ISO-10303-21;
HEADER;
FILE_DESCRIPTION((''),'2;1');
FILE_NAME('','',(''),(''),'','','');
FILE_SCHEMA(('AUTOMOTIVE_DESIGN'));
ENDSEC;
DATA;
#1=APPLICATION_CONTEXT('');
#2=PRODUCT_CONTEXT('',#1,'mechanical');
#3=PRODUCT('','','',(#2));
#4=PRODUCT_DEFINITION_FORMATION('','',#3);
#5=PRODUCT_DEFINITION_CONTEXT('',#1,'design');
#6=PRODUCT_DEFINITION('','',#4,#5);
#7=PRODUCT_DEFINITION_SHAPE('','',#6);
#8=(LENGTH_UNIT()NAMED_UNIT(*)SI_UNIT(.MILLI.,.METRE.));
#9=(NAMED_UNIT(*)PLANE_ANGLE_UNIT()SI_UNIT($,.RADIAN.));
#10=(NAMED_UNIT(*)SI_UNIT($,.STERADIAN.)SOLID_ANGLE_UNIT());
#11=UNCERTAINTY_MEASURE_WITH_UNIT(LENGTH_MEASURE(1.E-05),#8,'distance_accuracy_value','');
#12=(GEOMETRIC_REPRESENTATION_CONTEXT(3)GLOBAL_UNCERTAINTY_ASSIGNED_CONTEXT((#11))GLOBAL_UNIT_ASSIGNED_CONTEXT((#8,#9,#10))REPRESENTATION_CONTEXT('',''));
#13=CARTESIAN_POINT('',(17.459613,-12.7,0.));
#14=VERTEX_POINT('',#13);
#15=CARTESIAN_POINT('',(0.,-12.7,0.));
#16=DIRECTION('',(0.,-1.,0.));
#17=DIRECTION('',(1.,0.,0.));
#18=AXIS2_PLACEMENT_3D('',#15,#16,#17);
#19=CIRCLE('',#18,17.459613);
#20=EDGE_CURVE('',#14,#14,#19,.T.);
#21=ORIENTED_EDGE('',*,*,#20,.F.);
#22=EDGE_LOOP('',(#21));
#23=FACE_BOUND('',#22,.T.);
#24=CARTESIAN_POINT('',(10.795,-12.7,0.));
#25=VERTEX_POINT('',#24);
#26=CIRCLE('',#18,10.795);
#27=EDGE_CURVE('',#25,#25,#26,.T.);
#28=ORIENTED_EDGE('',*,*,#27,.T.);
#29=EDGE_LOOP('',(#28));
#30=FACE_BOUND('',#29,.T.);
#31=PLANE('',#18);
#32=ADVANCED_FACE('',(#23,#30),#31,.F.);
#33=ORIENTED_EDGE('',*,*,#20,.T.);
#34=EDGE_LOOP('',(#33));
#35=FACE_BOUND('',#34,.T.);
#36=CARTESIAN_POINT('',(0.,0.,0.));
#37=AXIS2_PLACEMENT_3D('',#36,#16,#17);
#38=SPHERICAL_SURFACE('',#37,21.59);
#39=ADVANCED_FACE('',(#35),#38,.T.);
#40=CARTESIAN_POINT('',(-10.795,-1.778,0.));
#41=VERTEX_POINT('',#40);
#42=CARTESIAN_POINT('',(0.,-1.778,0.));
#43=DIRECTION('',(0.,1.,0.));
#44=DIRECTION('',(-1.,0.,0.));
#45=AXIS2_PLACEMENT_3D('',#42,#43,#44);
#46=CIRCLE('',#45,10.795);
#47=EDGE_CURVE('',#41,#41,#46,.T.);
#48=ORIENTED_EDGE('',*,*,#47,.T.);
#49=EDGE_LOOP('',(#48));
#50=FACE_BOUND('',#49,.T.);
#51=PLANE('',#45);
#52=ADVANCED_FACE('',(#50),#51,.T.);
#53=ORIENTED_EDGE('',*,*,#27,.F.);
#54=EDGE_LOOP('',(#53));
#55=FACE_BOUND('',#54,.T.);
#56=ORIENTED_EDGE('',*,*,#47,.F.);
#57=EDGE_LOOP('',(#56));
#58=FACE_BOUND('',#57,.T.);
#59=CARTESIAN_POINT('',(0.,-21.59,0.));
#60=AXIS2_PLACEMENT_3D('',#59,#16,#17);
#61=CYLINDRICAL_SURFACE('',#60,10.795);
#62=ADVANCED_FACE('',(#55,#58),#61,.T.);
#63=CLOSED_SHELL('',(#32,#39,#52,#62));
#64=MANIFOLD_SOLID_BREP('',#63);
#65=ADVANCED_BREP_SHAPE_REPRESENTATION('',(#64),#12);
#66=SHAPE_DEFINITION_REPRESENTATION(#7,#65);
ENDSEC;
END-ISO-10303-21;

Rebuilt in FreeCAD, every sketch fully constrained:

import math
import FreeCAD as App
import Part
import Sketcher
Q = App.Units.Quantity

doc = App.newDocument("Part")
body = doc.addObject("PartDesign::Body", "Body")

# Sketch on XY plane
sketch1 = body.newObject("Sketcher::SketchObject", "Sketch")
sketch1.AttachmentSupport = (doc.getObject("XY_Plane"), [""])
sketch1.MapMode = "FlatFace"
sketch1.addGeometry(Part.LineSegment(App.Vector(0, 0, 0), App.Vector(-11, 0, 0)), False)
sketch1.addGeometry(Part.LineSegment(App.Vector(-11, 0, 0), App.Vector(-11, -13, 0)), False)
sketch1.addGeometry(Part.LineSegment(App.Vector(-11, -13, 0), App.Vector(-17, -13, 0)), False)
sketch1.addGeometry(Part.ArcOfCircle(Part.Circle(App.Vector(0, 0, 0), App.Vector(0, 0, 1), 22), math.radians(-144), math.radians(-90)), False)
sketch1.addGeometry(Part.LineSegment(App.Vector(0, -22, 0), App.Vector(0, 0, 0)), False)
sketch1.addConstraint(Sketcher.Constraint("Coincident", 0, 2, 1, 1))
sketch1.addConstraint(Sketcher.Constraint("Coincident", 1, 2, 2, 1))
sketch1.addConstraint(Sketcher.Constraint("Coincident", 2, 2, 3, 1))
sketch1.addConstraint(Sketcher.Constraint("Coincident", 3, 2, 4, 1))
sketch1.addConstraint(Sketcher.Constraint("Coincident", 4, 2, 0, 1))
sketch1.addConstraint(Sketcher.Constraint("Horizontal", 0))
sketch1.addConstraint(Sketcher.Constraint("Vertical", 1))
sketch1.addConstraint(Sketcher.Constraint("Horizontal", 2))
sketch1.addConstraint(Sketcher.Constraint("Vertical", 4))
sketch1.addConstraint(Sketcher.Constraint("Coincident", 3, 3, -1, 1))
sketch1.addConstraint(Sketcher.Constraint("Coincident", 4, 2, -1, 1))
sketch1.addConstraint(Sketcher.Constraint("Radius", 3, Q("0.85 in")))
sketch1.addConstraint(Sketcher.Constraint("DistanceY", 1, 2, 1, 1, Q("0.5 in")))
sketch1.addConstraint(Sketcher.Constraint("DistanceX", 0, 2, 0, 1, Q("0.425 in")))
revolution = body.newObject("PartDesign::Revolution", "Revolution")
revolution.Profile = sketch1
revolution.ReferenceAxis = (sketch1, ["V_Axis"])
revolution.Angle = 360

# Sketch on XZ plane
sketch2 = body.newObject("Sketcher::SketchObject", "Sketch001")
sketch2.AttachmentSupport = (doc.getObject("XZ_Plane"), [""])
sketch2.MapMode = "FlatFace"
sketch2.addGeometry(Part.Circle(App.Vector(0, 0, 0), App.Vector(0, 0, 1), 11), False)
sketch2.addConstraint(Sketcher.Constraint("Coincident", 0, 3, -1, 1))
sketch2.addConstraint(Sketcher.Constraint("Diameter", 0, Q("0.85 in")))
pocket1 = body.newObject("PartDesign::Pocket", "Pocket")
pocket1.Profile = sketch2
pocket1.Length = Q("0.07 in")
pocket1.Reversed = True

doc.recompute()
